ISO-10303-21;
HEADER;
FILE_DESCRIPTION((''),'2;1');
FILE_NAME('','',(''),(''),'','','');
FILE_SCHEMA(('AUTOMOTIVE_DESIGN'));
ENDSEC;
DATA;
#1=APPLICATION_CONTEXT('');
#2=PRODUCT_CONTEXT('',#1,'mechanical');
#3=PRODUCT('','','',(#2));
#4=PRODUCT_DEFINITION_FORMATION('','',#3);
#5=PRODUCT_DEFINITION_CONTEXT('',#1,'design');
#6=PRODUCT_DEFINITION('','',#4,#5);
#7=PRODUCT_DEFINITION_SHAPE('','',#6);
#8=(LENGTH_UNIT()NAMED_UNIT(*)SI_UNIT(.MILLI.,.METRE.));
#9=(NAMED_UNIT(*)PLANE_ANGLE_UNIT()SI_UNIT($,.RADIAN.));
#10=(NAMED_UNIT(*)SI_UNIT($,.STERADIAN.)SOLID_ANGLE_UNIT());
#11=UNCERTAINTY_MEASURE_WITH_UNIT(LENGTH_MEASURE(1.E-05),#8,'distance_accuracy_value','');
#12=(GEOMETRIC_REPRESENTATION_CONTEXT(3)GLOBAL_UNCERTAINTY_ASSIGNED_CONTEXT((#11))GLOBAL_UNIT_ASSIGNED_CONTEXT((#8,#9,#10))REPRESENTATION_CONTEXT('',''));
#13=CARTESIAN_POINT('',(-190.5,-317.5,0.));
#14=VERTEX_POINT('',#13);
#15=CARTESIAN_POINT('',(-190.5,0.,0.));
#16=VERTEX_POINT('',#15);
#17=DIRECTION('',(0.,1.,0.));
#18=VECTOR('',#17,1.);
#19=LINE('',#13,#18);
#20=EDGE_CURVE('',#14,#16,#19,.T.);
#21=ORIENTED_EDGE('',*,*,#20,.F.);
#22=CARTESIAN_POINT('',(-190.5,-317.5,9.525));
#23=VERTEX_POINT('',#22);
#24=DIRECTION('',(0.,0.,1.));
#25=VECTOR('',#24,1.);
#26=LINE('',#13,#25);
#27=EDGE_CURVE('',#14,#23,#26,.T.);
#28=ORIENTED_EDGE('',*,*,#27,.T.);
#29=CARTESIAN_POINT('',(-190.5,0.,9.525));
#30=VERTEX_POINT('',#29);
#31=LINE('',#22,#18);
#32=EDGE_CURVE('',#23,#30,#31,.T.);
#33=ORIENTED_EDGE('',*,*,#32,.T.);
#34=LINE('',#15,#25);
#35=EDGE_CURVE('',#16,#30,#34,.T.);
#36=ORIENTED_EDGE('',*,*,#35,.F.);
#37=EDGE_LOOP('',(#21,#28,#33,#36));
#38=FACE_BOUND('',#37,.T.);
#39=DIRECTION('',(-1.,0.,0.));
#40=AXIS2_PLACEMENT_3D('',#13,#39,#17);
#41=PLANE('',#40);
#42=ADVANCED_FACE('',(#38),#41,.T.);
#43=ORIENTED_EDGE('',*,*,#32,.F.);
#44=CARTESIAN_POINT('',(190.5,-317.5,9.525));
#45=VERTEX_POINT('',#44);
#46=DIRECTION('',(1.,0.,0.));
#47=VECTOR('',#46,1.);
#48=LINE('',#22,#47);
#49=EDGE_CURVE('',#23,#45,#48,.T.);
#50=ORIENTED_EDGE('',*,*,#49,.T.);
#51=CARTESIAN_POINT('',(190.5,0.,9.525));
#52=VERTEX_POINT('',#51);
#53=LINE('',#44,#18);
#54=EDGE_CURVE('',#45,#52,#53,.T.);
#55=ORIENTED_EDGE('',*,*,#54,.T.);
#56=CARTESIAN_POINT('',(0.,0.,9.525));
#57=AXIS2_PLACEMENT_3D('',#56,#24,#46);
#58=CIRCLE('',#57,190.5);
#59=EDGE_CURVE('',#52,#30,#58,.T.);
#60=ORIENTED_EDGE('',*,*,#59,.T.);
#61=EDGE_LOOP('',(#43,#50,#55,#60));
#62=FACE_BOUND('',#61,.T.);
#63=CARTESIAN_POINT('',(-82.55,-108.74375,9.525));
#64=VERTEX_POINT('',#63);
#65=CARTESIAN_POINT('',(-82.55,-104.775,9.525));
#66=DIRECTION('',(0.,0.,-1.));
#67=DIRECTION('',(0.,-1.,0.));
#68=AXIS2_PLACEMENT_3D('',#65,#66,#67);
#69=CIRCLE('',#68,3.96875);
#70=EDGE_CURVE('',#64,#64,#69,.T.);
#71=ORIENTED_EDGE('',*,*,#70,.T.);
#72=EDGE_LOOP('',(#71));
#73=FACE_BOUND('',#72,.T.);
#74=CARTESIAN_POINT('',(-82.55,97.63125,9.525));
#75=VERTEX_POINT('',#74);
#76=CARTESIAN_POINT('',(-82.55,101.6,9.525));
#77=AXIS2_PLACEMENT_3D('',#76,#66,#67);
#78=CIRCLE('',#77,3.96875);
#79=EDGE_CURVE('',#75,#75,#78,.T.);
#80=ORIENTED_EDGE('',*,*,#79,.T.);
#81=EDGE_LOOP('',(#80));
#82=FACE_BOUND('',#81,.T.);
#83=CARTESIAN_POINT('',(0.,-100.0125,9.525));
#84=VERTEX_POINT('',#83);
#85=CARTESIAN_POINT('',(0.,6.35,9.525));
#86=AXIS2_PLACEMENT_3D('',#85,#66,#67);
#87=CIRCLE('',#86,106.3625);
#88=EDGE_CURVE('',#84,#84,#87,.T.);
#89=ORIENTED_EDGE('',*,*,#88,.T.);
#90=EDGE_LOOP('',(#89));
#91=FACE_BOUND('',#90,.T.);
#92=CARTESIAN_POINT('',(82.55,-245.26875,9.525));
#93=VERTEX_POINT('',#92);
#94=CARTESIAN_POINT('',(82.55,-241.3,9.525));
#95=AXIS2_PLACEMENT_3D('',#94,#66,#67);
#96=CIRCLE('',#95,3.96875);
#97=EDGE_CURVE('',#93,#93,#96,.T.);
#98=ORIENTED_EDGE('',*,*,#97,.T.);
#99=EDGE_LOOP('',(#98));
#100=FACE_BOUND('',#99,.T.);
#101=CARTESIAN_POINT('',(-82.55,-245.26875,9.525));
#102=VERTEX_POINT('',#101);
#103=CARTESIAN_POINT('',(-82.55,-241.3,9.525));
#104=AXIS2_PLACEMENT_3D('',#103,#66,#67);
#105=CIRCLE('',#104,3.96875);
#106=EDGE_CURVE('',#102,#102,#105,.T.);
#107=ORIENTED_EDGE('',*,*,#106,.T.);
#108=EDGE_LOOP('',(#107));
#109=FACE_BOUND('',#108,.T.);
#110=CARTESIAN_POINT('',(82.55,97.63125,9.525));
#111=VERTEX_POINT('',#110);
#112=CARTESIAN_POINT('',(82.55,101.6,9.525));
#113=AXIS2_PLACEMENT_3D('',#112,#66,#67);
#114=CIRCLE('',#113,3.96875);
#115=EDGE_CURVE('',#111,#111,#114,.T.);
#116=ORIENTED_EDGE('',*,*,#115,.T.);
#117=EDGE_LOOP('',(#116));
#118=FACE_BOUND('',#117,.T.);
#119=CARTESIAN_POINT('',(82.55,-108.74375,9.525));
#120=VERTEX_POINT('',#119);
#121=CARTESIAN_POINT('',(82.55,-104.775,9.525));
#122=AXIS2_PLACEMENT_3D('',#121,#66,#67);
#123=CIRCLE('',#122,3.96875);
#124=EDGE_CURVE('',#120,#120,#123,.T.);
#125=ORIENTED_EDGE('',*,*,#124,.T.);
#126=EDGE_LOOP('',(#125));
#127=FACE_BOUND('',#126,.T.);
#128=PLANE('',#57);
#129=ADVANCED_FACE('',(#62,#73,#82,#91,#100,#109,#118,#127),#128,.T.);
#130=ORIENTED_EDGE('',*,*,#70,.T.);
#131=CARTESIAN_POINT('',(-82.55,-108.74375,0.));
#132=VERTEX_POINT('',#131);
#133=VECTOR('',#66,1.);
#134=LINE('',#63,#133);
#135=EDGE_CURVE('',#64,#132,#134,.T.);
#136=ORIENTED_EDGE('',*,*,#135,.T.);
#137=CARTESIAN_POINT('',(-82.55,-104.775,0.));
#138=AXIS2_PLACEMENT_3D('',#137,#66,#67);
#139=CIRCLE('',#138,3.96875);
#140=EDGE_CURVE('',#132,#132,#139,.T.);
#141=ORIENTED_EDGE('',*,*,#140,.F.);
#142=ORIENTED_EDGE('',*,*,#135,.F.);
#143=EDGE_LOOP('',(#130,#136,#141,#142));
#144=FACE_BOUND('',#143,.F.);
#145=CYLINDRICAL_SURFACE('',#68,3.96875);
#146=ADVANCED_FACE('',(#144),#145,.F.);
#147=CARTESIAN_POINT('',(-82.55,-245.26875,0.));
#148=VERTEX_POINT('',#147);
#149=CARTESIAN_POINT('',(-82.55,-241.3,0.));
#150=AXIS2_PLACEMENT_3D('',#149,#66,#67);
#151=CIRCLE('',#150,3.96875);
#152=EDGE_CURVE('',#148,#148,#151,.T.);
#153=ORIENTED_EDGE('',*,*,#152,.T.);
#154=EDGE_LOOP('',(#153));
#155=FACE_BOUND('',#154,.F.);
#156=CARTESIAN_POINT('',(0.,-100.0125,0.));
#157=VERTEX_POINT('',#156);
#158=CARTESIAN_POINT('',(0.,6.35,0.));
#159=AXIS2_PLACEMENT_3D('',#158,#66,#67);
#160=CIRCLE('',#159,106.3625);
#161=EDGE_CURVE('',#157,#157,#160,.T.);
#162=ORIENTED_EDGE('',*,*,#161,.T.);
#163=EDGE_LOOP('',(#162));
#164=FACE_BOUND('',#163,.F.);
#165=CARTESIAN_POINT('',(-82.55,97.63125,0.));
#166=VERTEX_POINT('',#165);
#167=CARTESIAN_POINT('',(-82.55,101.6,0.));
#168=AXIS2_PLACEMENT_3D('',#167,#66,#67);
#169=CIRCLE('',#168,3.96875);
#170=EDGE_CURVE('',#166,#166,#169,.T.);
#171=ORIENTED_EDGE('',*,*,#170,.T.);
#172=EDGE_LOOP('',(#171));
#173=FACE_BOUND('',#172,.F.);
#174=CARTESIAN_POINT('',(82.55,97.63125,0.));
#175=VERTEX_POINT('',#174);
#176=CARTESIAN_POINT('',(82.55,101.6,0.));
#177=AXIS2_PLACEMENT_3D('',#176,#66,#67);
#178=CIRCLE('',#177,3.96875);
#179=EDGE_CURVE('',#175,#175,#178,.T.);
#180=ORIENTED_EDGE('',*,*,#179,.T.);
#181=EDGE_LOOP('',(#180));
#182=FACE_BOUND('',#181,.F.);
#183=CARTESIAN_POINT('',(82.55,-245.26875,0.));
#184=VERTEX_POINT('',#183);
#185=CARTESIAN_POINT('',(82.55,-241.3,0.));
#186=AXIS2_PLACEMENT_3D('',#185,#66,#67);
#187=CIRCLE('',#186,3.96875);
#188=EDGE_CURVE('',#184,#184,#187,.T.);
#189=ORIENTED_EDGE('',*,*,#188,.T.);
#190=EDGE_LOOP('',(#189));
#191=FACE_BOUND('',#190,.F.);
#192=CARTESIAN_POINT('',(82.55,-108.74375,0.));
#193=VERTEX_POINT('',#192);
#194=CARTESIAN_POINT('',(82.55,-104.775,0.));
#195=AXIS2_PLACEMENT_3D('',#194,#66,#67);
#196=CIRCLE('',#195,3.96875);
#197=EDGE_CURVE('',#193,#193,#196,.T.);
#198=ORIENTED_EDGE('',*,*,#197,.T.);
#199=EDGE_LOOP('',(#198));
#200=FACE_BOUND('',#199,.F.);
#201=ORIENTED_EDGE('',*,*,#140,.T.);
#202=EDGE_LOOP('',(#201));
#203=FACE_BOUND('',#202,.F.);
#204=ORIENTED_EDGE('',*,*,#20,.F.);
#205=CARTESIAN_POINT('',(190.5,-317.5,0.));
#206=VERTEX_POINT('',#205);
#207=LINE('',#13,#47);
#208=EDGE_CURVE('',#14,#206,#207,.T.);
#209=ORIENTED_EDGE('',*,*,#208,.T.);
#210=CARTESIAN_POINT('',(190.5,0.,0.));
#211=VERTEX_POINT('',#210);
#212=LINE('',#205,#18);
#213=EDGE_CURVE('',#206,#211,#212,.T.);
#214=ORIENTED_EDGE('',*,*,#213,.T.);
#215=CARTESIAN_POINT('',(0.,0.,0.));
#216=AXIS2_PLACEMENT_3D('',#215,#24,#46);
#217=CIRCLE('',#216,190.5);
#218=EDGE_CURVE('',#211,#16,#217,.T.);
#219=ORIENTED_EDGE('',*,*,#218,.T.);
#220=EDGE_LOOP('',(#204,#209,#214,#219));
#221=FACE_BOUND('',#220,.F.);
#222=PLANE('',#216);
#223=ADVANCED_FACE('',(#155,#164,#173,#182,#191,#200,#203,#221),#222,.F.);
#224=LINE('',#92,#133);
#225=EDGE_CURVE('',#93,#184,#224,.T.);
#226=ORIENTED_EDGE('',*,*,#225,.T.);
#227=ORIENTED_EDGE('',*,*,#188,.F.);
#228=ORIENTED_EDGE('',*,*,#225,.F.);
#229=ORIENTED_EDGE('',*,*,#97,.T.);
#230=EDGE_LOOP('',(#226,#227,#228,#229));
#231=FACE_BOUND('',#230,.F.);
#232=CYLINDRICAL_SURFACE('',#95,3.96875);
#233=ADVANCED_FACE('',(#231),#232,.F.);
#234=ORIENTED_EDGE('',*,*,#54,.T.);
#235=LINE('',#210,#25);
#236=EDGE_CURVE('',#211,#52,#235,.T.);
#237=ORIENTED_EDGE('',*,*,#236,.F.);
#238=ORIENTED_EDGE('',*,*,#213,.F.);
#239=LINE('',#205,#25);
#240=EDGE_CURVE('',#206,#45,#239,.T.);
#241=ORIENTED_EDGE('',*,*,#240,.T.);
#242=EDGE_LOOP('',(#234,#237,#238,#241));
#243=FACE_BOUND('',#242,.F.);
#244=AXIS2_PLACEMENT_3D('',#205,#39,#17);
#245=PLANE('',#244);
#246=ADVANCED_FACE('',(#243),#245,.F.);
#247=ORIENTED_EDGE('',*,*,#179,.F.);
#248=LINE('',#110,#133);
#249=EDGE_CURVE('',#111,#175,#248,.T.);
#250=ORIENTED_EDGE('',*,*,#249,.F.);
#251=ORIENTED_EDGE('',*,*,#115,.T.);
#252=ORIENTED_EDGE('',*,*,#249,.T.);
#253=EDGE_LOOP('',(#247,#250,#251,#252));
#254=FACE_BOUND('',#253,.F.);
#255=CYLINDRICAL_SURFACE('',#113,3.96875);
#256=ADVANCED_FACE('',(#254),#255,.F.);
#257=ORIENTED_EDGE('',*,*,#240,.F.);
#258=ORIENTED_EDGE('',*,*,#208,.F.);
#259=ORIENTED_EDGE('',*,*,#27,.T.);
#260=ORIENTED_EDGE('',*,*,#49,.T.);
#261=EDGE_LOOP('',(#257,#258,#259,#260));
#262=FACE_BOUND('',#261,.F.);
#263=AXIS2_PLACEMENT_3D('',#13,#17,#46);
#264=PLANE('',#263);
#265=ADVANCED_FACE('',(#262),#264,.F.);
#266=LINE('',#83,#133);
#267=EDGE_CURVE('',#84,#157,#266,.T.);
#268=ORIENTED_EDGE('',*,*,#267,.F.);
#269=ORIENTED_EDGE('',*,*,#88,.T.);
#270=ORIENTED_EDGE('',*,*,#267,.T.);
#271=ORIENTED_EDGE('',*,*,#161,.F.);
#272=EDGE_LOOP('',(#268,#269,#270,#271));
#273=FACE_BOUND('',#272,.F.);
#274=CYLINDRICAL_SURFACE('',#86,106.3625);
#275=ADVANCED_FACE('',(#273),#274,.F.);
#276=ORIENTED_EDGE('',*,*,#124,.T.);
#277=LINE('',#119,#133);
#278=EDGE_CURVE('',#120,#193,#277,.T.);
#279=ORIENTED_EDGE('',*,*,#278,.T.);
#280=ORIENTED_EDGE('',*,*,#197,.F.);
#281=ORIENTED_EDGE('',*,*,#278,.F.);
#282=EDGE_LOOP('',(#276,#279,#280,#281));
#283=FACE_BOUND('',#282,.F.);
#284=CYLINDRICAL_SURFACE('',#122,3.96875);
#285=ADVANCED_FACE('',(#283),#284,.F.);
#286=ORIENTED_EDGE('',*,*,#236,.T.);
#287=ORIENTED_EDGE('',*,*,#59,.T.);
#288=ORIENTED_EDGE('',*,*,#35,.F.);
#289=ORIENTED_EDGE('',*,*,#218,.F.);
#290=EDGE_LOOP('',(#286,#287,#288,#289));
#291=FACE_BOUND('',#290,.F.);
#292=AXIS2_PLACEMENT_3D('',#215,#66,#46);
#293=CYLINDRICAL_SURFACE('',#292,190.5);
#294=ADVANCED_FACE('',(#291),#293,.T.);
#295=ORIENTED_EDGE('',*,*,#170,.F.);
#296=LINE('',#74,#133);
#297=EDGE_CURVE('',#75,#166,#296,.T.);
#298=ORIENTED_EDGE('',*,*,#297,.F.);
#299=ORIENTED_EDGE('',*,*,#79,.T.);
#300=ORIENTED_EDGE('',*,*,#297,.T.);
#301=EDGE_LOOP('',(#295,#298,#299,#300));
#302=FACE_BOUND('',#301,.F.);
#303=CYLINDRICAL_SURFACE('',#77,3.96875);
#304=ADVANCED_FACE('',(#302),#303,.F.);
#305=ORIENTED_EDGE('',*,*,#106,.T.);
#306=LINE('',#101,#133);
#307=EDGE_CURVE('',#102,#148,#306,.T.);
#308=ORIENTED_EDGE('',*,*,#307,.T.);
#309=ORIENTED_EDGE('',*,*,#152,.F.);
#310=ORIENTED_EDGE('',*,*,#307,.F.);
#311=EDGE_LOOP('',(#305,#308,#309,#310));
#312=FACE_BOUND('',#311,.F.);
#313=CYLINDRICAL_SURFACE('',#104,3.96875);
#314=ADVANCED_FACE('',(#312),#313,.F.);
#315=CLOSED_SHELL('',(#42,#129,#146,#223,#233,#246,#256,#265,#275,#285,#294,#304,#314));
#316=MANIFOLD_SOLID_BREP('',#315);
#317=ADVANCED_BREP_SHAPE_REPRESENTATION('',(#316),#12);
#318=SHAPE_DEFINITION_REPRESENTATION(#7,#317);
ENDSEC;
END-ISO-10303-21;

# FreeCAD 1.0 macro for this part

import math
import FreeCAD as App
import Part
import Sketcher
from FreeCAD import Vector
Q = App.Units.Quantity

doc = App.newDocument("Part")
body = doc.addObject("PartDesign::Body", "Body")

sketch1 = body.newObject("Sketcher::SketchObject", "Sketch")
sketch1.AttachmentSupport = (doc.getObject("XY_Plane"), [""])
sketch1.MapMode = "FlatFace"
sketch1.addGeometry([
    Part.LineSegment(Vector(-190, 0, 0), Vector(-190, -318, 0)),
    Part.LineSegment(Vector(-190, -318, 0), Vector(190, -318, 0)),
    Part.LineSegment(Vector(190, -318, 0), Vector(190, 0, 0)),
    Part.ArcOfCircle(Part.Circle(Vector(0, 0, 0), Vector(0, 0, 1), 190), math.radians(0), math.radians(180)),
], False)
sketch1.addConstraint([
    Sketcher.Constraint("Coincident", 0, 2, 1, 1),
    Sketcher.Constraint("Coincident", 1, 2, 2, 1),
    Sketcher.Constraint("Tangent", 2, 2, 3, 1),
    Sketcher.Constraint("Tangent", 3, 2, 0, 1),
    Sketcher.Constraint("Vertical", 0),
    Sketcher.Constraint("Horizontal", 1),
    Sketcher.Constraint("Vertical", 2),
    Sketcher.Constraint("Coincident", 3, 3, -1, 1),
    Sketcher.Constraint("Radius", 3, Q("7.5 in")),
    Sketcher.Constraint("DistanceY", 0, 2, 0, 1, Q("12.5 in")),
])
pad1 = body.newObject("PartDesign::Pad", "Pad")
pad1.Profile = sketch1
pad1.Length = Q("0.375 in")

sketch2 = body.newObject("Sketcher::SketchObject", "Sketch001")
sketch2.AttachmentSupport = (doc.getObject("XY_Plane"), [""])
sketch2.MapMode = "FlatFace"
sketch2.AttachmentOffset = App.Placement(Vector(0, 0, 0.375 * 25.4), App.Rotation())
sketch2.addGeometry(Part.Circle(Vector(82.5, -241.3, 0), Vector(0, 0, 1), 4), False)
sketch2.addConstraint([
    Sketcher.Constraint("Diameter", 0, Q("0.3125 in")),
    Sketcher.Constraint("DistanceY", 0, 3, -1, 1, Q("9.5 in")),
    Sketcher.Constraint("DistanceX", -1, 1, 0, 3, Q("3.25 in")),
])
doc.recompute()
hole = body.newObject("PartDesign::Hole", "Hole")
hole.Profile = sketch2
hole.ThreadType = "None"
hole.Diameter = Q("0.3125 in")
hole.DepthType = "Dimension"
hole.Depth = Q("1 in")
hole.DrillPoint = "Angled"
hole.DrillPointAngle = 118

sketch3 = body.newObject("Sketcher::SketchObject", "Sketch002")
sketch3.AttachmentSupport = (doc.getObject("XY_Plane"), [""])
sketch3.MapMode = "FlatFace"
sketch3.AttachmentOffset = App.Placement(Vector(0, 0, 0.375 * 25.4), App.Rotation())
sketch3.addGeometry(Part.Circle(Vector(-82.5, -241.3, 0), Vector(0, 0, 1), 4), False)
sketch3.addConstraint([
    Sketcher.Constraint("Diameter", 0, Q("0.3125 in")),
    Sketcher.Constraint("DistanceY", 0, 3, -1, 1, Q("9.5 in")),
    Sketcher.Constraint("DistanceX", 0, 3, -1, 1, Q("3.25 in")),
])
doc.recompute()
hole2 = body.newObject("PartDesign::Hole", "Hole001")
hole2.Profile = sketch3
hole2.ThreadType = "None"
hole2.Diameter = Q("0.3125 in")
hole2.DepthType = "Dimension"
hole2.Depth = Q("1 in")
hole2.DrillPoint = "Angled"
hole2.DrillPointAngle = 118

sketch4 = body.newObject("Sketcher::SketchObject", "Sketch003")
sketch4.AttachmentSupport = (doc.getObject("XY_Plane"), [""])
sketch4.MapMode = "FlatFace"
sketch4.AttachmentOffset = App.Placement(Vector(0, 0, 0.375 * 25.4), App.Rotation())
sketch4.addGeometry(Part.Circle(Vector(82.5, -104.8, 0), Vector(0, 0, 1), 4), False)
sketch4.addConstraint([
    Sketcher.Constraint("Diameter", 0, Q("0.3125 in")),
    Sketcher.Constraint("DistanceX", -1, 1, 0, 3, Q("3.25 in")),
    Sketcher.Constraint("DistanceY", 0, 3, -1, 1, Q("4.125 in")),
])
doc.recompute()
hole3 = body.newObject("PartDesign::Hole", "Hole002")
hole3.Profile = sketch4
hole3.ThreadType = "None"
hole3.Diameter = Q("0.3125 in")
hole3.DepthType = "Dimension"
hole3.Depth = Q("1 in")
hole3.DrillPoint = "Angled"
hole3.DrillPointAngle = 118

sketch5 = body.newObject("Sketcher::SketchObject", "Sketch004")
sketch5.AttachmentSupport = (doc.getObject("XY_Plane"), [""])
sketch5.MapMode = "FlatFace"
sketch5.AttachmentOffset = App.Placement(Vector(0, 0, 0.375 * 25.4), App.Rotation())
sketch5.addGeometry(Part.Circle(Vector(-82.5, -104.8, 0), Vector(0, 0, 1), 4), False)
sketch5.addConstraint([
    Sketcher.Constraint("Diameter", 0, Q("0.3125 in")),
    Sketcher.Constraint("DistanceX", 0, 3, -1, 1, Q("3.25 in")),
    Sketcher.Constraint("DistanceY", 0, 3, -1, 1, Q("4.125 in")),
])
doc.recompute()
hole4 = body.newObject("PartDesign::Hole", "Hole003")
hole4.Profile = sketch5
hole4.ThreadType = "None"
hole4.Diameter = Q("0.3125 in")
hole4.DepthType = "Dimension"
hole4.Depth = Q("1 in")
hole4.DrillPoint = "Angled"
hole4.DrillPointAngle = 118

sketch6 = body.newObject("Sketcher::SketchObject", "Sketch005")
sketch6.AttachmentSupport = (doc.getObject("XY_Plane"), [""])
sketch6.MapMode = "FlatFace"
sketch6.AttachmentOffset = App.Placement(Vector(0, 0, 0.375 * 25.4), App.Rotation())
sketch6.addGeometry(Part.Circle(Vector(-82.5, 101.6, 0), Vector(0, 0, 1), 4), False)
sketch6.addConstraint([
    Sketcher.Constraint("Diameter", 0, Q("0.3125 in")),
    Sketcher.Constraint("DistanceY", -1, 1, 0, 3, Q("4 in")),
    Sketcher.Constraint("DistanceX", 0, 3, -1, 1, Q("3.25 in")),
])
doc.recompute()
hole5 = body.newObject("PartDesign::Hole", "Hole004")
hole5.Profile = sketch6
hole5.ThreadType = "None"
hole5.Diameter = Q("0.3125 in")
hole5.DepthType = "Dimension"
hole5.Depth = Q("1 in")
hole5.DrillPoint = "Angled"
hole5.DrillPointAngle = 118

sketch7 = body.newObject("Sketcher::SketchObject", "Sketch006")
sketch7.AttachmentSupport = (doc.getObject("XY_Plane"), [""])
sketch7.MapMode = "FlatFace"
sketch7.AttachmentOffset = App.Placement(Vector(0, 0, 0.375 * 25.4), App.Rotation())
sketch7.addGeometry(Part.Circle(Vector(82.5, 101.6, 0), Vector(0, 0, 1), 4), False)
sketch7.addConstraint([
    Sketcher.Constraint("Diameter", 0, Q("0.3125 in")),
    Sketcher.Constraint("DistanceY", -1, 1, 0, 3, Q("4 in")),
    Sketcher.Constraint("DistanceX", -1, 1, 0, 3, Q("3.25 in")),
])
doc.recompute()
hole6 = body.newObject("PartDesign::Hole", "Hole005")
hole6.Profile = sketch7
hole6.ThreadType = "None"
hole6.Diameter = Q("0.3125 in")
hole6.DepthType = "Dimension"
hole6.Depth = Q("1 in")
hole6.DrillPoint = "Angled"
hole6.DrillPointAngle = 118

sketch8 = body.newObject("Sketcher::SketchObject", "Sketch007")
sketch8.AttachmentSupport = (doc.getObject("XY_Plane"), [""])
sketch8.MapMode = "FlatFace"
sketch8.AttachmentOffset = App.Placement(Vector(0, 0, 0.375 * 25.4), App.Rotation())
sketch8.addGeometry(Part.Circle(Vector(0, 6, 0), Vector(0, 0, 1), 106), False)
sketch8.addConstraint([
    Sketcher.Constraint("PointOnObject", 0, 3, -2),
    Sketcher.Constraint("Diameter", 0, Q("8.375 in")),
    Sketcher.Constraint("DistanceY", -1, 1, 0, 3, Q("0.25 in")),
])
doc.recompute()
hole7 = body.newObject("PartDesign::Hole", "Hole006")
hole7.Profile = sketch8
hole7.ThreadType = "None"
hole7.Diameter = Q("8.375 in")
hole7.DepthType = "Dimension"
hole7.Depth = Q("1 in")
hole7.DrillPoint = "Angled"
hole7.DrillPointAngle = 118

doc.recompute()
